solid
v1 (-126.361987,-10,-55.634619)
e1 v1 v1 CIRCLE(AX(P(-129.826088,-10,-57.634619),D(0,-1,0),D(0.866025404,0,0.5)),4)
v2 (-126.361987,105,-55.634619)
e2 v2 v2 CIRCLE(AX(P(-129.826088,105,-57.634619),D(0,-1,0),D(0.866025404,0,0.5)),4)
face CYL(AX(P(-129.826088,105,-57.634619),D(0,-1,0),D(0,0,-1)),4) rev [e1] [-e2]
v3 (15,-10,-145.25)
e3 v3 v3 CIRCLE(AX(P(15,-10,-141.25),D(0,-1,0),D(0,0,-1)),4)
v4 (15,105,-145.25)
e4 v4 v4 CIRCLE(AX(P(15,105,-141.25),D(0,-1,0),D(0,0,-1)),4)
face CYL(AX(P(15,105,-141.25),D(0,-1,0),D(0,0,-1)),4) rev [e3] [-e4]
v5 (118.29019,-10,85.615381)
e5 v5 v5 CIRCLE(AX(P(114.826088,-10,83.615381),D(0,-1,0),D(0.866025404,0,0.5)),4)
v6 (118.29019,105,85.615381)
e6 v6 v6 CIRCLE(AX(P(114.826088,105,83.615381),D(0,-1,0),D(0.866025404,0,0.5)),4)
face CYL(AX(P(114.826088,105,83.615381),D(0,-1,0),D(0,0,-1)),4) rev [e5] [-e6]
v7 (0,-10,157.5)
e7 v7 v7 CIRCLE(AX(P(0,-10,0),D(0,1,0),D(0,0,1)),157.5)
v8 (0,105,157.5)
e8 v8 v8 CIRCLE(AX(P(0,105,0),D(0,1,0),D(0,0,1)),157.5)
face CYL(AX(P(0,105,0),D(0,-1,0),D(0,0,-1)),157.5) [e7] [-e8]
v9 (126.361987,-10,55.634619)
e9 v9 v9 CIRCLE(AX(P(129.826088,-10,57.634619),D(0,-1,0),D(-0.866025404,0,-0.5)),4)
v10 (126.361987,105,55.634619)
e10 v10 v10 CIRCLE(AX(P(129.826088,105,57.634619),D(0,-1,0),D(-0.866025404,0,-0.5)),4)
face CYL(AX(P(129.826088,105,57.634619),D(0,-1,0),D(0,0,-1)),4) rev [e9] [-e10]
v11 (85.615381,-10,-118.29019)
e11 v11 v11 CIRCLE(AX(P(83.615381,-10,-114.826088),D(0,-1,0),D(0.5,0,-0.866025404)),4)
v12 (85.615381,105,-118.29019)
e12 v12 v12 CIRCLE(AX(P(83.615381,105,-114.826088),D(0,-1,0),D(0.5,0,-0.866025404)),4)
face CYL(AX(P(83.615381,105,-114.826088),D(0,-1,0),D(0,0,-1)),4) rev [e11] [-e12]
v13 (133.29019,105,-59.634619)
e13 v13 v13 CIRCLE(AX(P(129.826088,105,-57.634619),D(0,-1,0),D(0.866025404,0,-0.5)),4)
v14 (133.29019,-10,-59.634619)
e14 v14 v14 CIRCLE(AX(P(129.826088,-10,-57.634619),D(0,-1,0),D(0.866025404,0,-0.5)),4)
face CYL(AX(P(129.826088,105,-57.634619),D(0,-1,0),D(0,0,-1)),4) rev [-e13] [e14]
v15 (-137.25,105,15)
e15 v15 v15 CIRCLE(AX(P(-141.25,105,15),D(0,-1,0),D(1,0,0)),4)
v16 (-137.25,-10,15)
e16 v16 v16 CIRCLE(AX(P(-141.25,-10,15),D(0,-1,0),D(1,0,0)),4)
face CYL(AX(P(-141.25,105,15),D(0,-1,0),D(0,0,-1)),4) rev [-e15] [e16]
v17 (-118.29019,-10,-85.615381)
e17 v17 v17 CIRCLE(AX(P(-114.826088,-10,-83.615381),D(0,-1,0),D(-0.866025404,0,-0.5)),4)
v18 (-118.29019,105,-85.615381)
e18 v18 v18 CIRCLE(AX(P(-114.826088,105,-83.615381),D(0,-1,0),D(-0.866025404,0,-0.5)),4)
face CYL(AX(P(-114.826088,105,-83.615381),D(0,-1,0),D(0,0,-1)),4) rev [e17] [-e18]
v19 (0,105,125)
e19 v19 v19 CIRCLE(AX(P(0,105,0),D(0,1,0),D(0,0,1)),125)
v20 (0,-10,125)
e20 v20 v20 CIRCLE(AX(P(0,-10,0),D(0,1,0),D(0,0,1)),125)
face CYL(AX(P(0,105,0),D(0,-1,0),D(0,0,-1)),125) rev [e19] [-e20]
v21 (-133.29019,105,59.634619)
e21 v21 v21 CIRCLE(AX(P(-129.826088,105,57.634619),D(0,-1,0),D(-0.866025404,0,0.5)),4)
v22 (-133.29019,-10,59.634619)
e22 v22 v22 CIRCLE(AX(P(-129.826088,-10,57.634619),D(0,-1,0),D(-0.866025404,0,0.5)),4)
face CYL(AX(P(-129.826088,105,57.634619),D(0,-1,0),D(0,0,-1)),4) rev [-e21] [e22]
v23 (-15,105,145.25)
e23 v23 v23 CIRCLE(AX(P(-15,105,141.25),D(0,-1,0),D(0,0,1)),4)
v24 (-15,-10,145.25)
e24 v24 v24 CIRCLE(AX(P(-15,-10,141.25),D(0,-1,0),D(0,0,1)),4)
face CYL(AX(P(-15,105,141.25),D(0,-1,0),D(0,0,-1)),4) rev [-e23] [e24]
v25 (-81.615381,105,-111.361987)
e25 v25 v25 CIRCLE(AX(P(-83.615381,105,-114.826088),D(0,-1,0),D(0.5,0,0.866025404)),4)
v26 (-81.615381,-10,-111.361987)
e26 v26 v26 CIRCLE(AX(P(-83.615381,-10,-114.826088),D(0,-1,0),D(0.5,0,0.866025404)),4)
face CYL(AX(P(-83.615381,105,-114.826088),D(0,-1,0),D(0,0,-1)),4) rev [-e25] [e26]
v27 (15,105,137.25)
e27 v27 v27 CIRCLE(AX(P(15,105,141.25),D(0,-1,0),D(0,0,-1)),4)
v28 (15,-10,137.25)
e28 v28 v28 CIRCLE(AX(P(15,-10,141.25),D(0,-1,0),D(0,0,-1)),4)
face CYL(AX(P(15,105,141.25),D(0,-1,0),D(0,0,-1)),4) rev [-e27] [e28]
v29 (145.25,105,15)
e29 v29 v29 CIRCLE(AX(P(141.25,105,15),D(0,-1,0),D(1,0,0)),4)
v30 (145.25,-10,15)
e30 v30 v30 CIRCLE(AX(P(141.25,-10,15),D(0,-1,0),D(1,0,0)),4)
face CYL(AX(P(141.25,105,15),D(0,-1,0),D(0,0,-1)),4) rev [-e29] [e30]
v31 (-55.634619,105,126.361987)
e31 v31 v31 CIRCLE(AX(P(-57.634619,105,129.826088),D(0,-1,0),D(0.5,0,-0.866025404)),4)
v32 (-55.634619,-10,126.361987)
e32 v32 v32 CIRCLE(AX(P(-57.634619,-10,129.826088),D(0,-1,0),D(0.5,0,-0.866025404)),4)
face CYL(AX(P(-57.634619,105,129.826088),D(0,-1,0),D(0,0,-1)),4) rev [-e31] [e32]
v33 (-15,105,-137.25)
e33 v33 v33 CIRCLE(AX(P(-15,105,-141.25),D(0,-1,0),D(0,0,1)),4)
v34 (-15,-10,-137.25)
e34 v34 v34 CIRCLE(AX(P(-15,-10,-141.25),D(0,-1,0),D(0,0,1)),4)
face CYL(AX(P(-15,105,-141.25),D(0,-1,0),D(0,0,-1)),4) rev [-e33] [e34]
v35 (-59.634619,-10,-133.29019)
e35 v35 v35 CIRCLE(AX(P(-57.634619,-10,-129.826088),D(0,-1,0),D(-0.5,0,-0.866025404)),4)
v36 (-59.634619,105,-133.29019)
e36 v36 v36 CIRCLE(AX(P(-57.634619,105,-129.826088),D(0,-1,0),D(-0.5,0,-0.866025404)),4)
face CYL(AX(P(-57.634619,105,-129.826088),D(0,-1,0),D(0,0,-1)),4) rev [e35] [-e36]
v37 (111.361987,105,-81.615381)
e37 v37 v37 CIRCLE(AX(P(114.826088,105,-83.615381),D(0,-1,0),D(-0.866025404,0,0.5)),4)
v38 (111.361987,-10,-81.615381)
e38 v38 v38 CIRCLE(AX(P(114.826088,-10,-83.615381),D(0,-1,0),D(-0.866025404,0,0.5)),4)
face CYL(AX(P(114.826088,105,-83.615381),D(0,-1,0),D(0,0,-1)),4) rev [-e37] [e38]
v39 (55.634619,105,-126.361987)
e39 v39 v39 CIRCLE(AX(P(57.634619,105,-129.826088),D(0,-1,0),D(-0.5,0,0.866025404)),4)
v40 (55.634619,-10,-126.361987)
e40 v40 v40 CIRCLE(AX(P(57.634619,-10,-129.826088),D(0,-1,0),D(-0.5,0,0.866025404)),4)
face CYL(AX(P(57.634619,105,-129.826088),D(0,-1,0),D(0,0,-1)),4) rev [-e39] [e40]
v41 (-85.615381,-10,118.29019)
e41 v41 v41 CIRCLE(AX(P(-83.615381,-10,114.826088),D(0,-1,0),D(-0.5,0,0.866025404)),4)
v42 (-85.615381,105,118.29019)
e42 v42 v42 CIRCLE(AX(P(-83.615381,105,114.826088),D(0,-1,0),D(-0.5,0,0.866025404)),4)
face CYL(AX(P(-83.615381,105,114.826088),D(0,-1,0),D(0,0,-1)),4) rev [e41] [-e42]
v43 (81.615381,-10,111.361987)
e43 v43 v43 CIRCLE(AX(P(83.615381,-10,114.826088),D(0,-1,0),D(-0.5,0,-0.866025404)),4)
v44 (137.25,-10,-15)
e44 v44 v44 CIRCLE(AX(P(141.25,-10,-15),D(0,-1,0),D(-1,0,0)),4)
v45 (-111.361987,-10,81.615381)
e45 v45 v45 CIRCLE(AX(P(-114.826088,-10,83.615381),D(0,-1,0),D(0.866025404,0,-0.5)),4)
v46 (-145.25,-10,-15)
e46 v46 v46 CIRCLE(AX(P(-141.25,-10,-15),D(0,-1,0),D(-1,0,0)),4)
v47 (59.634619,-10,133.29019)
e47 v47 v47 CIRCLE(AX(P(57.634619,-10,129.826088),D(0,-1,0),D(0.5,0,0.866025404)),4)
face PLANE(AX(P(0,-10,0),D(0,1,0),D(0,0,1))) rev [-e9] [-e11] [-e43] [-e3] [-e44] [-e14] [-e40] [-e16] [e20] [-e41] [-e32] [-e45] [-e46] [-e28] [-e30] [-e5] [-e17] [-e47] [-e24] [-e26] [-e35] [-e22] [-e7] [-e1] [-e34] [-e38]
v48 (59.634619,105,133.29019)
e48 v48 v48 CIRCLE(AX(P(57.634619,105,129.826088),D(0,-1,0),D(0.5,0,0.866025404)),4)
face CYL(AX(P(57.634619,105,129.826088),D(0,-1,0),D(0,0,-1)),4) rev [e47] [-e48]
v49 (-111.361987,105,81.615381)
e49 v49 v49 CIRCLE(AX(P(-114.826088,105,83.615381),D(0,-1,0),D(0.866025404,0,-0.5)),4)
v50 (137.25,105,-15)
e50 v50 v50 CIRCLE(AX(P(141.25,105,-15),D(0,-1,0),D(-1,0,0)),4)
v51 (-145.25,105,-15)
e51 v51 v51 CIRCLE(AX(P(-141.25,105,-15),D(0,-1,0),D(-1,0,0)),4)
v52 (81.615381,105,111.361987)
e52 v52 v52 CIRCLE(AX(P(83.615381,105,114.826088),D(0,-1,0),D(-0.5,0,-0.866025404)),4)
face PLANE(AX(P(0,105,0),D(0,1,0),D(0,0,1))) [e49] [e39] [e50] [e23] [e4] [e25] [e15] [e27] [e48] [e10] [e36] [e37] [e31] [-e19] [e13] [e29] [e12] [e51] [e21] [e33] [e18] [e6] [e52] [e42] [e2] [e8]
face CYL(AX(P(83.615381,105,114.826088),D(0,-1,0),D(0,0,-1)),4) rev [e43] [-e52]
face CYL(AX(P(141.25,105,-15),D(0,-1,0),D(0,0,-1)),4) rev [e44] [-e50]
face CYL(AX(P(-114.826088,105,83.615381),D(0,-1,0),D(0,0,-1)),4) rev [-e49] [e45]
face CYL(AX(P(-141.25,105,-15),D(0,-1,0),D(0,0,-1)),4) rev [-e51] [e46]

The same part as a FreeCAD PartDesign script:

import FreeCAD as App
import Part
import Sketcher
Q = App.Units.Quantity

doc = App.newDocument("Part")
params = doc.addObject("Spreadsheet::Sheet", "Params")
for row, (alias, value) in enumerate([
    ("sketch1_diameter", "315 mm"),
    ("sketch1_diameter2", "250 mm"),
    ("pad1_length", "105 mm"),
    ("pad1_length2", "10 mm"),
    ("sketch2_diameter", "8 mm"),
], start=1):
    params.set(f"A{row}", alias)
    params.set(f"B{row}", "=" + value)
    params.setAlias(f"B{row}", alias)

body = doc.addObject("PartDesign::Body", "Body")

sketch1 = body.newObject("Sketcher::SketchObject", "Sketch")
sketch1.AttachmentSupport = (doc.getObject("XZ_Plane"), [""])
sketch1.MapMode = "FlatFace"
sketch1.addGeometry([
    Part.Circle(App.Vector(0, 0, 0), App.Vector(0, 0, 1), 158),
    Part.Circle(App.Vector(0, 0, 0), App.Vector(0, 0, 1), 125),
], False)
sketch1.addConstraint([
    Sketcher.Constraint("Coincident", 0, 3, -1, 1),
    Sketcher.Constraint("Coincident", 1, 3, -1, 1),
    Sketcher.Constraint("Diameter", 0, Q("315 mm")),
    Sketcher.Constraint("Diameter", 1, Q("250 mm")),
])
sketch1.setExpression("Constraints[2]", "Params.sketch1_diameter")
sketch1.setExpression("Constraints[3]", "Params.sketch1_diameter2")
pad1 = body.newObject("PartDesign::Pad", "Pad")
pad1.Profile = sketch1
pad1.Type = "TwoLengths"
pad1.setExpression("Length", "Params.pad1_length")
pad1.setExpression("Length2", "Params.pad1_length2")
pad1.Reversed = True

sketch2 = body.newObject("Sketcher::SketchObject", "Sketch001")
sketch2.AttachmentSupport = (doc.getObject("XZ_Plane"), [""])
sketch2.MapMode = "FlatFace"
sketch2.AttachmentOffset = App.Placement(App.Vector(0, 0, 10), App.Rotation())
sketch2.addGeometry([
    Part.Circle(App.Vector(15, -141.2, 0), App.Vector(0, 0, 1), 4),
    Part.Circle(App.Vector(-15, -141.2, 0), App.Vector(0, 0, 1), 4),
], False)
sketch2.addConstraint([
    Sketcher.Constraint("Equal", 0, 1),
    Sketcher.Constraint("Symmetric", 0, 3, 1, 3, -2),
    Sketcher.Constraint("Diameter", 0, Q("8 mm")),
    Sketcher.Constraint("DistanceX", -1, 1, 0, 3, Q("15 mm")),
    Sketcher.Constraint("DistanceY", 0, 3, -1, 1, Q("141.25 mm")),
])
sketch2.setExpression("Constraints[2]", "Params.sketch2_diameter")
pocket1 = body.newObject("PartDesign::Pocket", "Pocket")
pocket1.Profile = sketch2
pocket1.Type = "ThroughAll"
doc.recompute()

polarpattern = body.newObject("PartDesign::PolarPattern", "PolarPattern")
polarpattern.Originals = [pocket1]
polarpattern.Axis = (doc.getObject("Y_Axis"), [""])
polarpattern.Angle = 360
polarpattern.Occurrences = 12
body.Tip = polarpattern

doc.recompute()
